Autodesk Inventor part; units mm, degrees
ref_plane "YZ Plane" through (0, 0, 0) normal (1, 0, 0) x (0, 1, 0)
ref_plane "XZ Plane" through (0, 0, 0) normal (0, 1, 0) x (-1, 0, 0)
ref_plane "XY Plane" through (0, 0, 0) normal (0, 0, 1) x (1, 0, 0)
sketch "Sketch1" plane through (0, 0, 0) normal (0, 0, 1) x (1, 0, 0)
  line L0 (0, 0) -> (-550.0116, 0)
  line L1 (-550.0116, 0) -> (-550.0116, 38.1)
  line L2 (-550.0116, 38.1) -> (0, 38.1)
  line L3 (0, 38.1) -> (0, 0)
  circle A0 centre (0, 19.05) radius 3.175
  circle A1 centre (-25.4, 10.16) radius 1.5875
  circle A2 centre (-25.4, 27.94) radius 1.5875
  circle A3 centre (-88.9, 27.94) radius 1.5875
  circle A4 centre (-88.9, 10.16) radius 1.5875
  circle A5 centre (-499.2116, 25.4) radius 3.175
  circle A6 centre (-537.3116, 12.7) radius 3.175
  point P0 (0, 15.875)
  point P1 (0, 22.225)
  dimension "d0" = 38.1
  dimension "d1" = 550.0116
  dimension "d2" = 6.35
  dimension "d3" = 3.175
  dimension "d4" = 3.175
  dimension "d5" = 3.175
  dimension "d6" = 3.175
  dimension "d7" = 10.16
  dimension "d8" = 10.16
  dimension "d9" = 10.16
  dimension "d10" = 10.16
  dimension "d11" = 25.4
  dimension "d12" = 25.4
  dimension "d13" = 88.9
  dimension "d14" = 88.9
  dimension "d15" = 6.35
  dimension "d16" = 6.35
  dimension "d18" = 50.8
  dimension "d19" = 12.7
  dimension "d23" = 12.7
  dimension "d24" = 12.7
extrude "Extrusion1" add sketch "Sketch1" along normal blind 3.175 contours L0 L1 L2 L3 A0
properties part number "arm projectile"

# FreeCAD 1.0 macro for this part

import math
import FreeCAD as App
import Part
import Sketcher
from FreeCAD import Vector
Q = App.Units.Quantity

doc = App.newDocument("Part")
body = doc.addObject("PartDesign::Body", "Body")

# Sketch on XY plane
sketch1 = body.newObject("Sketcher::SketchObject", "Sketch")
sketch1.AttachmentSupport = (doc.getObject("XY_Plane"), [""])
sketch1.MapMode = "FlatFace"
sketch1.addGeometry([
    Part.LineSegment(Vector(-550, 0, 0), Vector(0, 0, 0)),  # 0
    Part.LineSegment(Vector(0, 0, 0), Vector(0, 15.9, 0)),  # 1
    Part.ArcOfCircle(Part.Circle(Vector(0, 19.1, 0), Vector(0, 0, 1), 3.2), math.radians(90), math.radians(270)),  # 2
    Part.LineSegment(Vector(0, 22.2, 0), Vector(0, 38.1, 0)),  # 3
    Part.LineSegment(Vector(0, 38.1, 0), Vector(-550, 38.1, 0)),  # 4
    Part.LineSegment(Vector(-550, 38.1, 0), Vector(-550, 0, 0)),  # 5
    Part.Circle(Vector(-537.3, 12.7, 0), Vector(0, 0, 1), 3.2),  # 6
    Part.Circle(Vector(-88.9, 10.2, 0), Vector(0, 0, 1), 1.6),  # 7
    Part.Circle(Vector(-25.4, 10.2, 0), Vector(0, 0, 1), 1.6),  # 8
    Part.Circle(Vector(-499.2, 25.4, 0), Vector(0, 0, 1), 3.2),  # 9
    Part.Circle(Vector(-88.9, 27.9, 0), Vector(0, 0, 1), 1.6),  # 10
    Part.Circle(Vector(-25.4, 27.9, 0), Vector(0, 0, 1), 1.6),  # 11
], False)
sketch1.addConstraint([
    Sketcher.Constraint("Coincident", 0, 2, 1, 1),
    Sketcher.Constraint("Coincident", 1, 2, 2, 2),
    Sketcher.Constraint("Coincident", 2, 1, 3, 1),
    Sketcher.Constraint("Coincident", 3, 2, 4, 1),
    Sketcher.Constraint("Coincident", 4, 2, 5, 1),
    Sketcher.Constraint("Coincident", 5, 2, 0, 1),
    Sketcher.Constraint("Horizontal", 0),
    Sketcher.Constraint("Vertical", 1),
    Sketcher.Constraint("Vertical", 3),
    Sketcher.Constraint("Horizontal", 4),
    Sketcher.Constraint("Vertical", 5),
    Sketcher.Constraint("Coincident", 0, 2, -1, 1),
    Sketcher.Constraint("Equal", 2, 6),
    Sketcher.Constraint("Equal", 7, 8),
    Sketcher.Constraint("Equal", 6, 9),
    Sketcher.Constraint("Equal", 8, 10),
    Sketcher.Constraint("Equal", 10, 11),
    Sketcher.Constraint("PointOnObject", 2, 3, -2),
    Sketcher.Constraint("PointOnObject", 2, 1, -2),
    Sketcher.Constraint("Horizontal", 7, 3, 8, 3),
    Sketcher.Constraint("Horizontal", 10, 3, 11, 3),
    Sketcher.Constraint("Vertical", 7, 3, 10, 3),
    Sketcher.Constraint("Vertical", 8, 3, 11, 3),
    Sketcher.Constraint("Equal", 1, 3),
    Sketcher.Constraint("Diameter", 6, Q("0.25 in")),
    Sketcher.Constraint("Diameter", 7, Q("0.125 in")),
    Sketcher.Constraint("DistanceY", 5, 2, 5, 1, Q("1.5 in")),
    Sketcher.Constraint("DistanceX", 8, 3, -1, 1, Q("1 in")),
    Sketcher.Constraint("DistanceY", -1, 1, 9, 3, Q("1 in")),
    Sketcher.Constraint("DistanceY", 6, 3, 4, 2, Q("1 in")),
    Sketcher.Constraint("DistanceX", 4, 2, 9, 3, Q("2 in")),
    Sketcher.Constraint("DistanceX", 7, 3, -1, 1, Q("3.5 in")),
    Sketcher.Constraint("DistanceY", -1, 1, 7, 3, Q("0.4 in")),
    Sketcher.Constraint("DistanceX", 6, 3, 9, 3, Q("1.5 in")),
    Sketcher.Constraint("DistanceY", 11, 3, 3, 2, Q("0.4 in")),
    Sketcher.Constraint("DistanceX", 0, 1, 0, 2, Q("21.654 in")),
])
pad1 = body.newObject("PartDesign::Pad", "Pad")
pad1.Profile = sketch1
pad1.Length = Q("0.125 in")

doc.recompute()
